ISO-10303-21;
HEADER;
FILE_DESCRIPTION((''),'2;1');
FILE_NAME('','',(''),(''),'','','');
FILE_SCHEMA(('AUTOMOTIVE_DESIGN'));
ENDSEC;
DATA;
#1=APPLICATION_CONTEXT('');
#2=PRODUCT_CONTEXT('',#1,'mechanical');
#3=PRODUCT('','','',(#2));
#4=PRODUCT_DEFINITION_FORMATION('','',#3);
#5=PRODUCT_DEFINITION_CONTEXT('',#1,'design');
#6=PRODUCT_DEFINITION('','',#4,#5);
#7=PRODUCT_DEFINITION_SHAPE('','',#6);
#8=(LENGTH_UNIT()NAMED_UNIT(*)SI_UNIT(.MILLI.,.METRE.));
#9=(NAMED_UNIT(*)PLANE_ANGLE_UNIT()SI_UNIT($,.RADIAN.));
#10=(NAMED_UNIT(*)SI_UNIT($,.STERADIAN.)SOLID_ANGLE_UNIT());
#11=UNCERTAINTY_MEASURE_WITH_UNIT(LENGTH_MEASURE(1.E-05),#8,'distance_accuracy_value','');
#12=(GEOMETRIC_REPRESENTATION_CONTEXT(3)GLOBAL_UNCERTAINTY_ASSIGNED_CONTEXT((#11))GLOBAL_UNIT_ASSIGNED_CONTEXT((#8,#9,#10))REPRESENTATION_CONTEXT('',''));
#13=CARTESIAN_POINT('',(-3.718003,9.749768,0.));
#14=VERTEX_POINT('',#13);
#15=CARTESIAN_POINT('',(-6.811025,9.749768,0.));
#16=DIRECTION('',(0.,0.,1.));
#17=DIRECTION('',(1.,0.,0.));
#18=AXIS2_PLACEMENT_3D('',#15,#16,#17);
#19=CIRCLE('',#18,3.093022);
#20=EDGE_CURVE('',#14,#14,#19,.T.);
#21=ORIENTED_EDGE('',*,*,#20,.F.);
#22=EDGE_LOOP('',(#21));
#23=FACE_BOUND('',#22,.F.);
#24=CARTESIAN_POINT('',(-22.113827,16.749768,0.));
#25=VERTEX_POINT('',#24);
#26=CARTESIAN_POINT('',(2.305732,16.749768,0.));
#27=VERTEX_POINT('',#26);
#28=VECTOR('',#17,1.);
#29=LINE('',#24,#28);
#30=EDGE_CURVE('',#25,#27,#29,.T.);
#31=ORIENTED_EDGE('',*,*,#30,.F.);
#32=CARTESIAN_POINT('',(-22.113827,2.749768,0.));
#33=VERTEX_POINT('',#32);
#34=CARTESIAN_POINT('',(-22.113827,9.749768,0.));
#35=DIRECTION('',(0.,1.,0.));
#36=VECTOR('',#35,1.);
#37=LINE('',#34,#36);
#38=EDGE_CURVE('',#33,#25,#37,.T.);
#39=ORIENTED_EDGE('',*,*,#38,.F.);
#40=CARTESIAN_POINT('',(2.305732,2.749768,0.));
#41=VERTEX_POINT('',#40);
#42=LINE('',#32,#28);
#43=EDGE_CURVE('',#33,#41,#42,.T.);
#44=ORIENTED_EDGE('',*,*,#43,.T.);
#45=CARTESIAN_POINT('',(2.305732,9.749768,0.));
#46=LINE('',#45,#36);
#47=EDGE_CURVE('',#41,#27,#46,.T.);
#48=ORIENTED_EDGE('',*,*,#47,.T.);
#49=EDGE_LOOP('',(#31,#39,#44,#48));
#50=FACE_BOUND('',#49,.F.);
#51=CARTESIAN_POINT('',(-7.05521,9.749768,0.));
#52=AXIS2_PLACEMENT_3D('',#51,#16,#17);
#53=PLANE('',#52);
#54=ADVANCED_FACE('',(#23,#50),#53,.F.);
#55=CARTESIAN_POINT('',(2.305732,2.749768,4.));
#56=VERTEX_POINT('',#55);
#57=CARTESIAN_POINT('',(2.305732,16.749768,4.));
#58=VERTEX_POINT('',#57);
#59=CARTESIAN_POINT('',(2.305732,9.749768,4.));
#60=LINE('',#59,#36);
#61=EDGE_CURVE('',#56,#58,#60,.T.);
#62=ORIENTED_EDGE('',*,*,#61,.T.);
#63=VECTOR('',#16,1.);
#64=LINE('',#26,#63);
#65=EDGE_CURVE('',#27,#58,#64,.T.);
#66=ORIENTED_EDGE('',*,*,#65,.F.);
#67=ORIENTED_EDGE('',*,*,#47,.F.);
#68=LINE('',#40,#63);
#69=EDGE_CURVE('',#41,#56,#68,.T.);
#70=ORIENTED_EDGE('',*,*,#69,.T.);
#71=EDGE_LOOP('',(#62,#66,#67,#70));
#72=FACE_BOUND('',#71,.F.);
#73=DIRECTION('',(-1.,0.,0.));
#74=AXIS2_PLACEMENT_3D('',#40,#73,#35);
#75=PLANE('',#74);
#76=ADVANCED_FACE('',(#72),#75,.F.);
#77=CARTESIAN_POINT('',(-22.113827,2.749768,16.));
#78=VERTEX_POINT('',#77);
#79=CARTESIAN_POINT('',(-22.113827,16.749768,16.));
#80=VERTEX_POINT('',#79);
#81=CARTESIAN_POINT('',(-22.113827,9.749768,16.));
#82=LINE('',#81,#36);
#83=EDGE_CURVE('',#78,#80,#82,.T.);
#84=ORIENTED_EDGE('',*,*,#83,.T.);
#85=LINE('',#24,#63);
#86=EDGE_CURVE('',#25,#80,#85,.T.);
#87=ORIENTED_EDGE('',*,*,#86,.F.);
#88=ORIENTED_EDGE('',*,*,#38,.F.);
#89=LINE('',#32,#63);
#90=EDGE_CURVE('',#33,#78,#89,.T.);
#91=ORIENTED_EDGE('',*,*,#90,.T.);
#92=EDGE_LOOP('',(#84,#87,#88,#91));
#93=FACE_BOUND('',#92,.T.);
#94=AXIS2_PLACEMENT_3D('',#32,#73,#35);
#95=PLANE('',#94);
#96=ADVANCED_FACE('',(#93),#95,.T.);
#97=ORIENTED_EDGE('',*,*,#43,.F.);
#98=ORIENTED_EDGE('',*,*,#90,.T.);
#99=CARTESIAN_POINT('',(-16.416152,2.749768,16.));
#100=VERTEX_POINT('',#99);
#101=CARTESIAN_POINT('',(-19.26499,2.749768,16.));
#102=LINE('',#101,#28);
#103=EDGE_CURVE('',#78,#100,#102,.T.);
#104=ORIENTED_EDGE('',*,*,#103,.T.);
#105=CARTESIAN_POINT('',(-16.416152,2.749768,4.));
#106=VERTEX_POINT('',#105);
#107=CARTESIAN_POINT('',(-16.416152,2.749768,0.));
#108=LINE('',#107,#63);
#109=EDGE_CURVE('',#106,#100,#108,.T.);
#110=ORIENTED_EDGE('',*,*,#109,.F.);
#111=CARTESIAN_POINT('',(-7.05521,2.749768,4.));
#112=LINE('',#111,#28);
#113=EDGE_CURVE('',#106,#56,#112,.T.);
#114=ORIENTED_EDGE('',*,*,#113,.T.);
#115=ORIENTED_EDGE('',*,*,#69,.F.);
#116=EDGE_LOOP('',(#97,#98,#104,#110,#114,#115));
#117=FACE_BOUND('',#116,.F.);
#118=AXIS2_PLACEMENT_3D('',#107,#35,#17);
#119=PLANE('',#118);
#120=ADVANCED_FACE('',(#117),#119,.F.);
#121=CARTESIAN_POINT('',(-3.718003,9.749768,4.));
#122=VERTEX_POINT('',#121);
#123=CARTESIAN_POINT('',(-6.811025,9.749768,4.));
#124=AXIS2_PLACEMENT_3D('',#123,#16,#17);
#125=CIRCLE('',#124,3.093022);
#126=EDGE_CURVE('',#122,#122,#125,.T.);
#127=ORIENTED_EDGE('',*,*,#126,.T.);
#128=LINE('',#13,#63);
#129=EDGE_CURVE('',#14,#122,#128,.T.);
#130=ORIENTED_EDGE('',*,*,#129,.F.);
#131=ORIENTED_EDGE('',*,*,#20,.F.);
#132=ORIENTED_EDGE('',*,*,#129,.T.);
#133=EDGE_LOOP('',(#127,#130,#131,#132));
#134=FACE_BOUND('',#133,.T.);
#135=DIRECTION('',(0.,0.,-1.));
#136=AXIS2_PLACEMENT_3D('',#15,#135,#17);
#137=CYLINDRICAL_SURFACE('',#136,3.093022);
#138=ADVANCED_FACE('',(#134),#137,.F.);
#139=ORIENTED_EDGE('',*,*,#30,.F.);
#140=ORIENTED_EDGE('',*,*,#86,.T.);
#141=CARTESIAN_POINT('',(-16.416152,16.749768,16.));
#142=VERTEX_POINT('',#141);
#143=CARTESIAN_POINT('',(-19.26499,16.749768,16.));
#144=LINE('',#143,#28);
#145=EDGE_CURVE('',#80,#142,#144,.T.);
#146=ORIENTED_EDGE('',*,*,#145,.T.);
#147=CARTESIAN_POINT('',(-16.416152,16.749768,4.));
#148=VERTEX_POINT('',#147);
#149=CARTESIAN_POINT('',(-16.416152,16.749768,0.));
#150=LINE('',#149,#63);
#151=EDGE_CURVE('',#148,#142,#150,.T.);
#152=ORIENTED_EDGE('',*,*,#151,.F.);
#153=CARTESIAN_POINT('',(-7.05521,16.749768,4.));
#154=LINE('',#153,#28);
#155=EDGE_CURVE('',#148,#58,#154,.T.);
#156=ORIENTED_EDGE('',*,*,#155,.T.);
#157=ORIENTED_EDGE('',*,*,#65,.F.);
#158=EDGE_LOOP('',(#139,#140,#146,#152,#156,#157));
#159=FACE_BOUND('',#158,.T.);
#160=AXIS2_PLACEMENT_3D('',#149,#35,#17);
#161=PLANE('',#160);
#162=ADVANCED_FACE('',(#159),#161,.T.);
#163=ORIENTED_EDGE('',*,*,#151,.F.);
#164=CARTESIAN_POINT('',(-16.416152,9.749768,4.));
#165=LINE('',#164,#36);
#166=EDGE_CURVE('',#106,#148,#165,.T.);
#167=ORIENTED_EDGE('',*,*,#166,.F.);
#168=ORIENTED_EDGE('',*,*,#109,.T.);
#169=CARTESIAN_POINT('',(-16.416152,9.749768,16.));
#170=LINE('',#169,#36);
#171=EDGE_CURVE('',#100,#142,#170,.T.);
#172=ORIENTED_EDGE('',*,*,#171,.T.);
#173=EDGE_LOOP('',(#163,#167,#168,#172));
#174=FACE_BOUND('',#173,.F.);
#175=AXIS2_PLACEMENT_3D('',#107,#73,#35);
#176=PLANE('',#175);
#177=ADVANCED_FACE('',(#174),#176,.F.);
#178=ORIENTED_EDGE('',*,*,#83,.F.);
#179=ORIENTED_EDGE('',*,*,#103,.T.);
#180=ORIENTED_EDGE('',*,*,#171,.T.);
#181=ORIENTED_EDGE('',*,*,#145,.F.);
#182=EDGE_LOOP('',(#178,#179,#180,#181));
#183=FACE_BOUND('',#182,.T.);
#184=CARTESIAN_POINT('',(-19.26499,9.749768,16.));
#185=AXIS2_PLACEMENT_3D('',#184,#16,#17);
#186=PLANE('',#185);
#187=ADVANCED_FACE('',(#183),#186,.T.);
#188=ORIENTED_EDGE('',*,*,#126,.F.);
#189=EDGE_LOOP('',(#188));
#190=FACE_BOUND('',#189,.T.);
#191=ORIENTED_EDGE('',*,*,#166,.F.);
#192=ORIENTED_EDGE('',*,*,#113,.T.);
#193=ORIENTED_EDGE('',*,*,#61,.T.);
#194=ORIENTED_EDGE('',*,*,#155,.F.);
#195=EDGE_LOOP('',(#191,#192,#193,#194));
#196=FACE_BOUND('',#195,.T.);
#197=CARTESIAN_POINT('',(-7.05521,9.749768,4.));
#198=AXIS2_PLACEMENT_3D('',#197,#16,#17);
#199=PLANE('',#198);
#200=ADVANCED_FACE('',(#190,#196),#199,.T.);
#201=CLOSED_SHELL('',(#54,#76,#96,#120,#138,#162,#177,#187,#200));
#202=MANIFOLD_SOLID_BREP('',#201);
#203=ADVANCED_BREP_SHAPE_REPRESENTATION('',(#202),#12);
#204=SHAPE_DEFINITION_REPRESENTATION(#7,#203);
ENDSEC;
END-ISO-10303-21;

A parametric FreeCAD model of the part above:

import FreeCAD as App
import Part
import Sketcher
from FreeCAD import Vector
Q = App.Units.Quantity


def add_polygon(sketch, points):
    """Adds a closed chain of lines whose ends are joined by coincident constraints."""
    first, n = sketch.GeometryCount, len(points)
    for a, b in zip(points, points[1:] + points[:1]):
        sketch.addGeometry(Part.LineSegment(App.Vector(*a, 0), App.Vector(*b, 0)), False)
    for i in range(n):
        sketch.addConstraint(Sketcher.Constraint("Coincident", first + i, 2, first + (i + 1) % n, 1))

doc = App.newDocument("Part")
params = doc.addObject("Spreadsheet::Sheet", "Params")
for row, (alias, value) in enumerate([
    ("sketch1_height", "14 mm"),
    ("pad1_length", "16 mm"),
    ("sketch2_height", "14 mm"),
    ("pad2_length", "4 mm"),
], start=1):
    params.set(f"A{row}", alias)
    params.set(f"B{row}", "=" + value)
    params.setAlias(f"B{row}", alias)

body = doc.addObject("PartDesign::Body", "Body")

# Sketch on XY plane
sketch1 = body.newObject("Sketcher::SketchObject", "Sketch")
sketch1.AttachmentSupport = (doc.getObject("XY_Plane"), [""])
sketch1.MapMode = "FlatFace"
add_polygon(sketch1, [(-22, 17), (-22, 3), (-16, 3), (-16, 17)])  # lines 0-3
sketch1.addConstraint([
    Sketcher.Constraint("Vertical", 0),
    Sketcher.Constraint("Horizontal", 1),
    Sketcher.Constraint("Vertical", 2),
    Sketcher.Constraint("Horizontal", 3),
    Sketcher.Constraint("DistanceY", 0, 2, 0, 1, Q("14 mm")),
    Sketcher.Constraint("DistanceX", 1, 1, 1, 2, Q("5.697675 mm")),
    Sketcher.Constraint("DistanceY", -1, 1, 0, 2, Q("2.749768 mm")),
    Sketcher.Constraint("DistanceX", 0, 2, -1, 1, Q("22.113827 mm")),
])
sketch1.setExpression("Constraints[8]", "Params.sketch1_height")
pad1 = body.newObject("PartDesign::Pad", "Pad")
pad1.Profile = sketch1
pad1.setExpression("Length", "Params.pad1_length")

# Sketch on XY plane
sketch2 = body.newObject("Sketcher::SketchObject", "Sketch001")
sketch2.AttachmentSupport = (doc.getObject("XY_Plane"), [""])
sketch2.MapMode = "FlatFace"
add_polygon(sketch2, [(-16.4, 16.7), (-16.4, 2.7), (2.3, 2.7), (2.3, 16.7)])  # lines 0-3
sketch2.addGeometry(Part.Circle(Vector(-6.8, 9.7, 0), Vector(0, 0, 1), 3.1), False)  # 4
sketch2.addConstraint([
    Sketcher.Constraint("Vertical", 0),
    Sketcher.Constraint("Horizontal", 1),
    Sketcher.Constraint("Vertical", 2),
    Sketcher.Constraint("Horizontal", 3),
    Sketcher.Constraint("DistanceY", 0, 2, 0, 1, Q("14 mm")),
    Sketcher.Constraint("DistanceY", 0, 2, 4, 3, Q("7 mm")),
    Sketcher.Constraint("Diameter", 4, Q("6.186044 mm")),
    Sketcher.Constraint("DistanceX", 1, 1, 1, 2, Q("18.721885 mm")),
    Sketcher.Constraint("DistanceY", -1, 1, 0, 2, Q("2.749768 mm")),
    Sketcher.Constraint("DistanceX", 4, 3, -1, 1, Q("6.811025 mm")),
    Sketcher.Constraint("DistanceX", 0, 2, -1, 1, Q("16.416152 mm")),
])
sketch2.setExpression("Constraints[8]", "Params.sketch2_height")
pad2 = body.newObject("PartDesign::Pad", "Pad001")
pad2.Profile = sketch2
pad2.setExpression("Length", "Params.pad2_length")

doc.recompute()
